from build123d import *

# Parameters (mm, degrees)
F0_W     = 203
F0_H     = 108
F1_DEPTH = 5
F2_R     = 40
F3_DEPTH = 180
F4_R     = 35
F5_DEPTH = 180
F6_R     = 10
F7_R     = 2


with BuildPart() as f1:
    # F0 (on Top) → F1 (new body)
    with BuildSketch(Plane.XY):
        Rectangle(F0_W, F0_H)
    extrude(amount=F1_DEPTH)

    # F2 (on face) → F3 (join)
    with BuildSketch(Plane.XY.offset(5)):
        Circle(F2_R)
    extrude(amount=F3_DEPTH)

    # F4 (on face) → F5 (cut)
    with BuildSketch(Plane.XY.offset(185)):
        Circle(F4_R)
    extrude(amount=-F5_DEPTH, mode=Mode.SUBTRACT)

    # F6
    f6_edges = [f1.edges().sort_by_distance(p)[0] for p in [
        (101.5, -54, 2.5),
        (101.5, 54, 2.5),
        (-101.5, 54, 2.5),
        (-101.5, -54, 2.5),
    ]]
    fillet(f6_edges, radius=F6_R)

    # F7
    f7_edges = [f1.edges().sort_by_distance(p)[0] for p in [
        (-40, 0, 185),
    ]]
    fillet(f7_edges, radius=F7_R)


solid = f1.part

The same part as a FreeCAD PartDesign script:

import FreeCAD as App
import Part
import Sketcher

V = App.Vector


def edges_at(feature, points):
    """Names of the edges that pass closest to the given points."""
    edges = feature.Shape.Edges
    near = lambda p: min(range(len(edges)), key=lambda i: edges[i].distToShape(Part.Vertex(*p))[0])
    return sorted({f"Edge{near(p) + 1}" for p in points})

doc = App.newDocument("Part")
body = doc.addObject("PartDesign::Body", "Body")

# Sketch on XY plane
sketch1 = doc.addObject("Sketcher::SketchObject", "Sketch")
body.addObject(sketch1)
sketch1.AttachmentSupport = (doc.XY_Plane, [""])
sketch1.MapMode = "FlatFace"
sketch1.addGeometry([
    Part.LineSegment(V(-102, 54, 0), V(-102, -54, 0)),
    Part.LineSegment(V(-102, -54, 0), V(102, -54, 0)),
    Part.LineSegment(V(102, -54, 0), V(102, 54, 0)),
    Part.LineSegment(V(102, 54, 0), V(-102, 54, 0)),
], False)
sketch1.addConstraint([
    Sketcher.Constraint("Coincident", 0, 2, 1, 1),
    Sketcher.Constraint("Coincident", 1, 2, 2, 1),
    Sketcher.Constraint("Coincident", 2, 2, 3, 1),
    Sketcher.Constraint("Coincident", 3, 2, 0, 1),
    Sketcher.Constraint("Vertical", 0),
    Sketcher.Constraint("Horizontal", 1),
    Sketcher.Constraint("Vertical", 2),
    Sketcher.Constraint("Horizontal", 3),
    Sketcher.Constraint("Symmetric", 0, 2, 2, 2, -1, 1),
    Sketcher.Constraint("DistanceX", 1, 1, 1, 2, 203.0),
    Sketcher.Constraint("DistanceY", 0, 2, 0, 1, 108.0),
])
pad1 = doc.addObject("PartDesign::Pad", "Pad")
body.addObject(pad1)
pad1.Profile = sketch1
pad1.Length = 5

# Sketch on XY plane
sketch2 = doc.addObject("Sketcher::SketchObject", "Sketch001")
body.addObject(sketch2)
sketch2.AttachmentSupport = (doc.XY_Plane, [""])
sketch2.MapMode = "FlatFace"
sketch2.AttachmentOffset = App.Placement(V(0, 0, 5), App.Rotation())
sketch2.addGeometry(Part.Circle(V(0, 0, 0), V(0, 0, 1), 40), False)
sketch2.addConstraint([
    Sketcher.Constraint("Coincident", 0, 3, -1, 1),
    Sketcher.Constraint("Diameter", 0, 80.0),
])
pad2 = doc.addObject("PartDesign::Pad", "Pad001")
body.addObject(pad2)
pad2.Profile = sketch2
pad2.Length = 180

# Sketch on XY plane
sketch3 = doc.addObject("Sketcher::SketchObject", "Sketch002")
body.addObject(sketch3)
sketch3.AttachmentSupport = (doc.XY_Plane, [""])
sketch3.MapMode = "FlatFace"
sketch3.AttachmentOffset = App.Placement(V(0, 0, 185), App.Rotation())
sketch3.addGeometry(Part.Circle(V(0, 0, 0), V(0, 0, 1), 35), False)
sketch3.addConstraint([
    Sketcher.Constraint("Coincident", 0, 3, -1, 1),
    Sketcher.Constraint("Diameter", 0, 70.0),
])
pocket1 = doc.addObject("PartDesign::Pocket", "Pocket")
body.addObject(pocket1)
pocket1.Profile = sketch3
pocket1.Length = 180
doc.recompute()

fillet = doc.addObject("PartDesign::Fillet", "Fillet")
body.addObject(fillet)
fillet.Base = (pocket1, edges_at(pocket1, [
    (101.5, -54, 2.5),
    (101.5, 54, 2.5),
    (-101.5, 54, 2.5),
    (-101.5, -54, 2.5),
]))
fillet.Radius = 10
doc.recompute()

fillet2 = doc.addObject("PartDesign::Fillet", "Fillet001")
body.addObject(fillet2)
fillet2.Base = (fillet, edges_at(fillet, [(-40, 0, 185)]))
fillet2.Radius = 2

doc.recompute()
